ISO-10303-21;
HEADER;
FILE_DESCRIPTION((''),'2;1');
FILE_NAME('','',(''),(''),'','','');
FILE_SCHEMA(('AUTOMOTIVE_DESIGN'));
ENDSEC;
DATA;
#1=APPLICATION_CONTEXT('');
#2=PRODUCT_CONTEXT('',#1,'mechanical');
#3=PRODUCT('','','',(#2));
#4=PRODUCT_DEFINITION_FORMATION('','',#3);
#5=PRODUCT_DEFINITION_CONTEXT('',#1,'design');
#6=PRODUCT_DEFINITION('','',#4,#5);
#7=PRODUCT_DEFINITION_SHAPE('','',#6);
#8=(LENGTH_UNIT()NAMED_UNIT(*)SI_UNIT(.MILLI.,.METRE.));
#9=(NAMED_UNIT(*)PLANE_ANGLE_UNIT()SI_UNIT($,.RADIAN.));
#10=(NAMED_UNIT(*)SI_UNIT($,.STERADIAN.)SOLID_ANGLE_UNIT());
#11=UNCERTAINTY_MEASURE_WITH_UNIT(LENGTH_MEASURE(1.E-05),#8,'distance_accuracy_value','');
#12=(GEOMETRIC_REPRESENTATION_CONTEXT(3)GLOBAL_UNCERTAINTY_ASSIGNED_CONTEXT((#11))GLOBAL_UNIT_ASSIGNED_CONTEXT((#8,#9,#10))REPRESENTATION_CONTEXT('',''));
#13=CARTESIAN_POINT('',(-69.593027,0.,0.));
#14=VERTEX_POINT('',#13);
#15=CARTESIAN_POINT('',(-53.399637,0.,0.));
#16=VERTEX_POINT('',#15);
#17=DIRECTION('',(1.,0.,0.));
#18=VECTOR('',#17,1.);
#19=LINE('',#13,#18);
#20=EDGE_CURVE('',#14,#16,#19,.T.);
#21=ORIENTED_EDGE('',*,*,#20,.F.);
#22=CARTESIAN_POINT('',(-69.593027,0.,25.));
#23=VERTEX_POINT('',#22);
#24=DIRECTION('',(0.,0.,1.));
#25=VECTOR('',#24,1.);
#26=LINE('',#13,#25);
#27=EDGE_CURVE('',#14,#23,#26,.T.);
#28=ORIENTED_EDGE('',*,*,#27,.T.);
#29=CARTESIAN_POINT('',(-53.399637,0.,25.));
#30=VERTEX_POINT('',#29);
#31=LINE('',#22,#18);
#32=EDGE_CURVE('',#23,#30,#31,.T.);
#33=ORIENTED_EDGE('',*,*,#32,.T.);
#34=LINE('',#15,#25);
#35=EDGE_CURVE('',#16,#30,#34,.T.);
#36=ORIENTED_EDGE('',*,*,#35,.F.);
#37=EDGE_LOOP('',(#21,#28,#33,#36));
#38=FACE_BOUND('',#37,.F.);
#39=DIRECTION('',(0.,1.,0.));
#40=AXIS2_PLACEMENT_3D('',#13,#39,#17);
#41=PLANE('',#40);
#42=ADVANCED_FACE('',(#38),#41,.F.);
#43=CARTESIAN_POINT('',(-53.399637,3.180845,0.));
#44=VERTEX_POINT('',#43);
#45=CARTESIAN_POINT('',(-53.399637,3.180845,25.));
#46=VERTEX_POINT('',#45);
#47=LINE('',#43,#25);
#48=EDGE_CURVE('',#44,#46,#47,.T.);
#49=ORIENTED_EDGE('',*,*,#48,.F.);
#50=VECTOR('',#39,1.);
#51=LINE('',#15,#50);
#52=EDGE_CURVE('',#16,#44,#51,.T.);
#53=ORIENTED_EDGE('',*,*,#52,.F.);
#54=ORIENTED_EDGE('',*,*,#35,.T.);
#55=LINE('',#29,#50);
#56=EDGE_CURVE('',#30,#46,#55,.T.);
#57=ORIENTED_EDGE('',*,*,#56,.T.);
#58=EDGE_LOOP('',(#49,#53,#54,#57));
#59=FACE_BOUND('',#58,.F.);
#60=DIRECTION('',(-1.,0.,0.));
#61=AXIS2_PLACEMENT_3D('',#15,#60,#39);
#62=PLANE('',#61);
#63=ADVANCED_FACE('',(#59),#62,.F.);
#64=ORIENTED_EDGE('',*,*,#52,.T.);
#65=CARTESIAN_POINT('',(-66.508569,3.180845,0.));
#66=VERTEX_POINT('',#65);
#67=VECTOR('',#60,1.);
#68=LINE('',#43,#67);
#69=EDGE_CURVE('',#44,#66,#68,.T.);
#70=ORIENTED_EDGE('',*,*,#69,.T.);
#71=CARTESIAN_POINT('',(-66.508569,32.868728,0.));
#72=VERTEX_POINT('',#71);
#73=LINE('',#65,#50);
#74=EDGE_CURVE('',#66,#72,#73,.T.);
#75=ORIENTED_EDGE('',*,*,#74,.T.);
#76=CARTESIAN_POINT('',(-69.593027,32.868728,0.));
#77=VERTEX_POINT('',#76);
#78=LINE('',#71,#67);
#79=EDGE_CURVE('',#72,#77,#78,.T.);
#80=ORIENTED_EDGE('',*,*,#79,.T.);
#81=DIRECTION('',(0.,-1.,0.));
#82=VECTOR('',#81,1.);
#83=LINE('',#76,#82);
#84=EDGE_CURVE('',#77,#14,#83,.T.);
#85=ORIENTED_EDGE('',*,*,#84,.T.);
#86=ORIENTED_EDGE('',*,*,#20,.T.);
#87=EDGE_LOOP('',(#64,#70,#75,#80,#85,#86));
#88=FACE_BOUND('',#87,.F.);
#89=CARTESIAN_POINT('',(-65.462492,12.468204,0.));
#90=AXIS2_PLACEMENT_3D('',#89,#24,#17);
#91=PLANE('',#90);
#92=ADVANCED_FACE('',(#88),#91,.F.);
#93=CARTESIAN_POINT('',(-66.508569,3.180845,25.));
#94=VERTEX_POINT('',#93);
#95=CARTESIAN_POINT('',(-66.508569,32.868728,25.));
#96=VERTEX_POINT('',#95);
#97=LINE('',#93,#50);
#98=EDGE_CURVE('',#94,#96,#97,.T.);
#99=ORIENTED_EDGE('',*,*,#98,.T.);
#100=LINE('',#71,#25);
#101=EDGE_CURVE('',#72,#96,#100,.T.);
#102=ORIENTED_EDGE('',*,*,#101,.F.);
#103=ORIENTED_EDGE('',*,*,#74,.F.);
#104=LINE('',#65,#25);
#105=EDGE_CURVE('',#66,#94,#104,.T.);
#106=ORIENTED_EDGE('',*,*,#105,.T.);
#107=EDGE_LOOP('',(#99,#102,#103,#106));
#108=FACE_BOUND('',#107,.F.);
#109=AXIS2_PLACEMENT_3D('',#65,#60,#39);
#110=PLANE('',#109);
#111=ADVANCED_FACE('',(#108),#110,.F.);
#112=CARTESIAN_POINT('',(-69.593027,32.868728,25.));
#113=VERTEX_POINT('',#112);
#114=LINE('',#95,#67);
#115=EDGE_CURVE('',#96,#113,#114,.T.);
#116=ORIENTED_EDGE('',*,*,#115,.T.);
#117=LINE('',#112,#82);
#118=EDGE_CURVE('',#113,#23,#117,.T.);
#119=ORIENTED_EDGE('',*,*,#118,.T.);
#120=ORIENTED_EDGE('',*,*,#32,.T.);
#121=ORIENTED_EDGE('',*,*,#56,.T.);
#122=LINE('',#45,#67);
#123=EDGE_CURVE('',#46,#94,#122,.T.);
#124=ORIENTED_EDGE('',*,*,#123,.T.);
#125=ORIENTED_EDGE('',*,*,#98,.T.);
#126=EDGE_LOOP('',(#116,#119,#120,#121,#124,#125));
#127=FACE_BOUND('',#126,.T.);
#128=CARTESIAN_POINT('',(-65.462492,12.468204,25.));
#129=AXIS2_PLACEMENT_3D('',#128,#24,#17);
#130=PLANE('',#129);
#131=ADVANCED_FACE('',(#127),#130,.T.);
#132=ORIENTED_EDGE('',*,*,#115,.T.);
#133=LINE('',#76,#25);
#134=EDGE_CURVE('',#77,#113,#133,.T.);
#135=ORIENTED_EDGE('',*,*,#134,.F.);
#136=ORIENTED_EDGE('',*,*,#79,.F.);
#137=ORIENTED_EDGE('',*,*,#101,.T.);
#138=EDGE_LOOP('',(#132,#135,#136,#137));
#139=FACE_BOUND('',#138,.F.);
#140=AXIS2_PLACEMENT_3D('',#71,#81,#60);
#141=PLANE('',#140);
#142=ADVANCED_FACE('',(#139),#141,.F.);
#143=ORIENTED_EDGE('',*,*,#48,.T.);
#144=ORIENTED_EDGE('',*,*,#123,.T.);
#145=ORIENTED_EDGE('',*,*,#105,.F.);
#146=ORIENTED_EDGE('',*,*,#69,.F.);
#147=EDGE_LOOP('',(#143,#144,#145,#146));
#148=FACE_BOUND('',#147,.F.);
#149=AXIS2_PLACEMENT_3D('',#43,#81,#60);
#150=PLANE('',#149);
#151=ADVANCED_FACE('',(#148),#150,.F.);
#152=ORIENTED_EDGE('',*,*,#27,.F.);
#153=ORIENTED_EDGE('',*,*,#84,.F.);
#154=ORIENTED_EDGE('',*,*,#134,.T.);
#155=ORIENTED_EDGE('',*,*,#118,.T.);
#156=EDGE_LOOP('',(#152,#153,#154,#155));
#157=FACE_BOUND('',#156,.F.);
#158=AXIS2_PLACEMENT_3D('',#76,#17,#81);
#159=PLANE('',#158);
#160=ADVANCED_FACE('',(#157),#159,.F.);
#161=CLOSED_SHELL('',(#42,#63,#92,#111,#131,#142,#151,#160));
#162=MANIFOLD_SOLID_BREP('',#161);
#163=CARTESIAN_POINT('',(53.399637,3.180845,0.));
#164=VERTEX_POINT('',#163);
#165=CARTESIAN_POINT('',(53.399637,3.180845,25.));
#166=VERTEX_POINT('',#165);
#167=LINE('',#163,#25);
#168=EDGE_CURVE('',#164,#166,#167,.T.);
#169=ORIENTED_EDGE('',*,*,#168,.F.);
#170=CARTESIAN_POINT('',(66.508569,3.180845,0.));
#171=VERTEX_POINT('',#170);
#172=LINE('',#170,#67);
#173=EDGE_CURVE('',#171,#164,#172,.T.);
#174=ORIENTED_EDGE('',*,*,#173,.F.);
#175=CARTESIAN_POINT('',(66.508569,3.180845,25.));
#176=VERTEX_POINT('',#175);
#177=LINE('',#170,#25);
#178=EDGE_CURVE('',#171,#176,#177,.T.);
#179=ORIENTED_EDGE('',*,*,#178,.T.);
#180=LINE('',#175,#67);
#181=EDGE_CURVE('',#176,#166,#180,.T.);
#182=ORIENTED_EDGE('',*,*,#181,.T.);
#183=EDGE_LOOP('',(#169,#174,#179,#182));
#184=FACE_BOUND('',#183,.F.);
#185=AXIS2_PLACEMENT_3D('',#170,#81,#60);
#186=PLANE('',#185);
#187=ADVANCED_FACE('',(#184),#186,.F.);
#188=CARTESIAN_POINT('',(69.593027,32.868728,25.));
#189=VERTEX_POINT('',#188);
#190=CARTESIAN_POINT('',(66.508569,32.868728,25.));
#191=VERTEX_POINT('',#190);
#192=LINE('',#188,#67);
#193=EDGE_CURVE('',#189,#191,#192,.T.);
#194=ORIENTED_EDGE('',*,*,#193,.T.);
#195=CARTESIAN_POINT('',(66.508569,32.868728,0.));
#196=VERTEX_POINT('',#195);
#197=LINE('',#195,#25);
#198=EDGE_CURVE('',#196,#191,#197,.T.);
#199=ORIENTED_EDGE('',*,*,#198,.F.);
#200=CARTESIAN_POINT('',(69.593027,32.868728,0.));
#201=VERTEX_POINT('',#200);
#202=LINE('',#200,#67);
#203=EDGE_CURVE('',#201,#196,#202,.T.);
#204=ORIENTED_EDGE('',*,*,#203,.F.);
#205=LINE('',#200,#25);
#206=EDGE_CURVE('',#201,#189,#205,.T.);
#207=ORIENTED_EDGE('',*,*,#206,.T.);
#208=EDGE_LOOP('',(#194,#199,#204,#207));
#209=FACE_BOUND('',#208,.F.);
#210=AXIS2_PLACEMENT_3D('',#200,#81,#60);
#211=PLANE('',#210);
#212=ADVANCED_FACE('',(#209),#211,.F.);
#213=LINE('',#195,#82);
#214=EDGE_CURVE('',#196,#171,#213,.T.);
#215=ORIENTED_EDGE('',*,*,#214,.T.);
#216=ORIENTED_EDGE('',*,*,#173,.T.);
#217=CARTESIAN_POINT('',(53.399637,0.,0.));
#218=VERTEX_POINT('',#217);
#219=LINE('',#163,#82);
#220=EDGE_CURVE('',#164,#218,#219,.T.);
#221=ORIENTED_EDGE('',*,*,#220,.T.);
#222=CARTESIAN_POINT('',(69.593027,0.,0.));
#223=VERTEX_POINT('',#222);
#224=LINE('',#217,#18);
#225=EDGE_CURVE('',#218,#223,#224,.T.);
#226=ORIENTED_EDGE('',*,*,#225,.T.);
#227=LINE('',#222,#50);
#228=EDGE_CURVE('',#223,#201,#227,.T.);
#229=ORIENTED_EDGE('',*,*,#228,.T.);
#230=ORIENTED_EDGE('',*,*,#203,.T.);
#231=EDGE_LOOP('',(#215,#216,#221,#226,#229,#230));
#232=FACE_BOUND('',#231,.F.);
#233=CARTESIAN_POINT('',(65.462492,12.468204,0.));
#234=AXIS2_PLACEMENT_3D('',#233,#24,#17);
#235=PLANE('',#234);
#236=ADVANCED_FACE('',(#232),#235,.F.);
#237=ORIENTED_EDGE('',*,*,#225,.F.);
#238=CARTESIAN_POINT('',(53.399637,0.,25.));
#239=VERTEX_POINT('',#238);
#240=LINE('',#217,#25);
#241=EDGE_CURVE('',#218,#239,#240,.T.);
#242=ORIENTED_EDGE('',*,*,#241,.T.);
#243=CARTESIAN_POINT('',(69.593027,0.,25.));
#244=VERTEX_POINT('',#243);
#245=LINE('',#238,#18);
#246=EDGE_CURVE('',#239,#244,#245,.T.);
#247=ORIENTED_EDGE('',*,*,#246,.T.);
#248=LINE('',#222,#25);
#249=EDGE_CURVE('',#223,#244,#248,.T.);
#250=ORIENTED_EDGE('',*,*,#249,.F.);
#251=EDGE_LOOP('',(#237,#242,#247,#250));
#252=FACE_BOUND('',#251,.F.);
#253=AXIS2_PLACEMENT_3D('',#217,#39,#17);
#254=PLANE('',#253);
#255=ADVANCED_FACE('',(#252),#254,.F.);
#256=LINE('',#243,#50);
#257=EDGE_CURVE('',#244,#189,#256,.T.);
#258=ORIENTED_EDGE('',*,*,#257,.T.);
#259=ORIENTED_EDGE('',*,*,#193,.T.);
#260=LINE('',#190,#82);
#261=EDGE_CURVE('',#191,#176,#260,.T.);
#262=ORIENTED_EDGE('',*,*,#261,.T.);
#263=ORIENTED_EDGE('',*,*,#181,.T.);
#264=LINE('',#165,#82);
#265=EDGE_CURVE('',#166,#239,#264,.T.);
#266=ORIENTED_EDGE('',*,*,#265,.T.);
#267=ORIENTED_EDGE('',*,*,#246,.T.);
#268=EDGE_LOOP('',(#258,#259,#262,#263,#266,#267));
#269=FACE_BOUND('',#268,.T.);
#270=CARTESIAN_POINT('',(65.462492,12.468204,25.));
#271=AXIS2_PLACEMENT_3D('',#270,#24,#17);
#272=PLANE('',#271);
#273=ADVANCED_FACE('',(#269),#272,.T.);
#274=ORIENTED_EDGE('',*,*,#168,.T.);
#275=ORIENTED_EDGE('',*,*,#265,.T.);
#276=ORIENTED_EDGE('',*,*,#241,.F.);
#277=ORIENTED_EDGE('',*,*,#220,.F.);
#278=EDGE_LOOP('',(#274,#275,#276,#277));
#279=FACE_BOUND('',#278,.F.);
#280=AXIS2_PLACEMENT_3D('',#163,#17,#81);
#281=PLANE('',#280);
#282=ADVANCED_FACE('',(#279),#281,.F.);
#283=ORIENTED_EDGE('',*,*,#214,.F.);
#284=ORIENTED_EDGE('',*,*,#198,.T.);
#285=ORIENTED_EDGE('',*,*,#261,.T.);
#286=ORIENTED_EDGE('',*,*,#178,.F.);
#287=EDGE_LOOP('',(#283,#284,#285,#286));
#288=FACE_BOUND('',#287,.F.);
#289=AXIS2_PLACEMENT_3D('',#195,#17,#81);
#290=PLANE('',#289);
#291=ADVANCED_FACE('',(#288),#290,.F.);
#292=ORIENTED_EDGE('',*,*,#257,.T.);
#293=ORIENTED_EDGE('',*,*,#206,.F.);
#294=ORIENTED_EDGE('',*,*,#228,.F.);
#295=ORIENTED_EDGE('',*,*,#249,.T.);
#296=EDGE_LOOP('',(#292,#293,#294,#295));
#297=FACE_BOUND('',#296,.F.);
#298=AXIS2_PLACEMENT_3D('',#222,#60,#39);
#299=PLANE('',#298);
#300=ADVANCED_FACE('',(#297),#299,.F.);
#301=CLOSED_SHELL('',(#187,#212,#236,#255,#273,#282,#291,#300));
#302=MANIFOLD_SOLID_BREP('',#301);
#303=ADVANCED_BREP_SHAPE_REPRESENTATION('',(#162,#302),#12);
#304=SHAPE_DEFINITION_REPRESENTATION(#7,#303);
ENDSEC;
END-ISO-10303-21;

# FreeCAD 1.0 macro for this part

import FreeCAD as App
import Part
import Sketcher
from FreeCAD import Vector
Q = App.Units.Quantity


def add_polygon(sketch, points):
    """Adds a closed chain of lines whose ends are joined by coincident constraints."""
    first, n = sketch.GeometryCount, len(points)
    for a, b in zip(points, points[1:] + points[:1]):
        sketch.addGeometry(Part.LineSegment(App.Vector(*a, 0), App.Vector(*b, 0)), False)
    for i in range(n):
        sketch.addConstraint(Sketcher.Constraint("Coincident", first + i, 2, first + (i + 1) % n, 1))

doc = App.newDocument("Part")
body = doc.addObject("PartDesign::Body", "Body")

sketch1 = body.newObject("Sketcher::SketchObject", "Sketch")
sketch1.AttachmentSupport = (doc.getObject("XY_Plane"), [""])
sketch1.MapMode = "FlatFace"
add_polygon(sketch1, [(-69.593027, 32.868728), (-69.593027, 0), (-53.399637, 0), (-53.399637, 3.180845), (-66.508569, 3.180845), (-66.508569, 32.868728)])
sketch1.addConstraint([
    Sketcher.Constraint("Vertical", 0),
    Sketcher.Constraint("Horizontal", 1),
    Sketcher.Constraint("Vertical", 2),
    Sketcher.Constraint("Horizontal", 3),
    Sketcher.Constraint("Vertical", 4),
    Sketcher.Constraint("Horizontal", 5),
    Sketcher.Constraint("PointOnObject", 0, 2, -1),
    Sketcher.Constraint("DistanceX", 1, 1, 1, 2, Q("16.19339 mm")),
    Sketcher.Constraint("DistanceX", 3, 2, 3, 1, Q("13.108932 mm")),
    Sketcher.Constraint("DistanceY", 0, 2, 0, 1, Q("32.868728 mm")),
    Sketcher.Constraint("DistanceY", 2, 1, 2, 2, Q("3.180845 mm")),
    Sketcher.Constraint("DistanceX", 3, 2, -1, 1, Q("66.508569 mm")),
])
pad1 = body.newObject("PartDesign::Pad", "Pad")
pad1.Profile = sketch1
pad1.Length = 25
body2 = doc.addObject("PartDesign::Body", "Body001")

sketch2 = body2.newObject("Sketcher::SketchObject", "Sketch001")
sketch2.AttachmentSupport = (doc.getObject("XY_Plane001"), [""])
sketch2.MapMode = "FlatFace"
add_polygon(sketch2, [(69.593027, 32.868728), (66.508569, 32.868728), (66.508569, 3.180845), (53.399637, 3.180845), (53.399637, 0), (69.593027, 0)])
sketch2.addConstraint([
    Sketcher.Constraint("Horizontal", 0),
    Sketcher.Constraint("Vertical", 1),
    Sketcher.Constraint("Horizontal", 2),
    Sketcher.Constraint("Vertical", 3),
    Sketcher.Constraint("Horizontal", 4),
    Sketcher.Constraint("Vertical", 5),
    Sketcher.Constraint("PointOnObject", 3, 2, -1),
    Sketcher.Constraint("DistanceX", 0, 2, 0, 1, Q("3.084458 mm")),
    Sketcher.Constraint("DistanceX", 2, 2, 2, 1, Q("13.108932 mm")),
    Sketcher.Constraint("DistanceY", 1, 2, 1, 1, Q("29.687883 mm")),
    Sketcher.Constraint("DistanceY", 3, 2, 3, 1, Q("3.180845 mm")),
    Sketcher.Constraint("DistanceX", -1, 1, 0, 2, Q("66.508569 mm")),
])
pad2 = body2.newObject("PartDesign::Pad", "Pad001")
pad2.Profile = sketch2
pad2.Length = 25

doc.recompute()
